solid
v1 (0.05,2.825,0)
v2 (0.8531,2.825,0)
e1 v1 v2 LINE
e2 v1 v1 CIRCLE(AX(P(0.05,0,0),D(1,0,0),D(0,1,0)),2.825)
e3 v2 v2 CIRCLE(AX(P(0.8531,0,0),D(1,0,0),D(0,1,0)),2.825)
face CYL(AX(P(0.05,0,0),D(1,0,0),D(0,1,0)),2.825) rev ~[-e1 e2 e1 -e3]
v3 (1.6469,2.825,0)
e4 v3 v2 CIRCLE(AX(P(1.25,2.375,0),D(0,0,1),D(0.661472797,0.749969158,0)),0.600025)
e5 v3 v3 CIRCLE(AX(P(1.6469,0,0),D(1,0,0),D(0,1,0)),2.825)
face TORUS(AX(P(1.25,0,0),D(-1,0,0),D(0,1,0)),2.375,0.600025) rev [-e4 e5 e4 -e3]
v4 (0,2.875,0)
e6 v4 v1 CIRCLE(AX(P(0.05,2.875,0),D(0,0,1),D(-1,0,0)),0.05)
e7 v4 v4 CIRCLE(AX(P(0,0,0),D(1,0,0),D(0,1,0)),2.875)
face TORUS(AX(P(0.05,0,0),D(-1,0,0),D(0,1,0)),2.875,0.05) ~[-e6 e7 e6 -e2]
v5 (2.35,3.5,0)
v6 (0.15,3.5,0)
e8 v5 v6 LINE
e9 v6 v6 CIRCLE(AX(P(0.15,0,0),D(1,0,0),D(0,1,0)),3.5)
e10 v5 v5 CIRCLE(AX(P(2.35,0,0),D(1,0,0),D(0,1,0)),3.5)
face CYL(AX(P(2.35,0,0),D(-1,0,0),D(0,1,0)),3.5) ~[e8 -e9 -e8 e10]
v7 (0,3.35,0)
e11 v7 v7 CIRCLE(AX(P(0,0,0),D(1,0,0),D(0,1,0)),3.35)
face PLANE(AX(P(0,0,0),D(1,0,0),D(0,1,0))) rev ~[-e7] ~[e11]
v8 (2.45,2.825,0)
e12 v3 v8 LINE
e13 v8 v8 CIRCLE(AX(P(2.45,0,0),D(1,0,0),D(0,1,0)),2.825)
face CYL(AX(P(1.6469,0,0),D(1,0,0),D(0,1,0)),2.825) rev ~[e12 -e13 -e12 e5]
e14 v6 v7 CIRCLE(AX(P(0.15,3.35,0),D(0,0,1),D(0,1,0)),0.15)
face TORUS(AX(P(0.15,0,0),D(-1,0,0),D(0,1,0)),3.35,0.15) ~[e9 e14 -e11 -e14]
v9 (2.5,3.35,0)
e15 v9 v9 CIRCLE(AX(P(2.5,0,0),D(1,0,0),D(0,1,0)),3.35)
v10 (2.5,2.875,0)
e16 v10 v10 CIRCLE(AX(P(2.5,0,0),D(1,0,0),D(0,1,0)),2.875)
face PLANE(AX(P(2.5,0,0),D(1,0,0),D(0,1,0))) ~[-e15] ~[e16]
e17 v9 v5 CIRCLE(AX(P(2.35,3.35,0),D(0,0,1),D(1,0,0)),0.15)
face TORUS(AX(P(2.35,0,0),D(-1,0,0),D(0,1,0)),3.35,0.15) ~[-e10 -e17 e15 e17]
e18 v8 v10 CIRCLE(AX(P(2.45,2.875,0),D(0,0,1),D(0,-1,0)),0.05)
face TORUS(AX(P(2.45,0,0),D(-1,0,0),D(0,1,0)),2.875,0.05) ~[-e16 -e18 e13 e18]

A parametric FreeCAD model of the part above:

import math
import FreeCAD as App
import Part
import Sketcher

V = App.Vector
Q = App.Units.Quantity

doc = App.newDocument("Part")
body = doc.addObject("PartDesign::Body", "Body")

# Sketch on XY plane
sketch1 = body.newObject("Sketcher::SketchObject", "Sketch")
sketch1.AttachmentSupport = (doc.getObject("XY_Plane"), [""])
sketch1.MapMode = "FlatFace"
sketch1.addGeometry(Part.LineSegment(V(0, 3.35, 0), V(0, 2.875, 0)), False)
sketch1.addGeometry(Part.ArcOfCircle(Part.Circle(V(0.05, 2.875, 0), V(0, 0, 1), 0.05), math.radians(180), math.radians(270)), False)
sketch1.addGeometry(Part.LineSegment(V(0.05, 2.825, 0), V(0.853, 2.825, 0)), False)
sketch1.addGeometry(Part.ArcOfCircle(Part.Circle(V(1.25, 2.375, 0), V(0, 0, 1), 0.6), math.radians(49), math.radians(131)), False)
sketch1.addGeometry(Part.LineSegment(V(1.647, 2.825, 0), V(2.45, 2.825, 0)), False)
sketch1.addGeometry(Part.ArcOfCircle(Part.Circle(V(2.45, 2.875, 0), V(0, 0, 1), 0.05), math.radians(-90), math.radians(0)), False)
sketch1.addGeometry(Part.LineSegment(V(2.5, 2.875, 0), V(2.5, 3.35, 0)), False)
sketch1.addGeometry(Part.ArcOfCircle(Part.Circle(V(2.35, 3.35, 0), V(0, 0, 1), 0.15), math.radians(0), math.radians(90)), False)
sketch1.addGeometry(Part.LineSegment(V(2.35, 3.5, 0), V(0.15, 3.5, 0)), False)
sketch1.addGeometry(Part.ArcOfCircle(Part.Circle(V(0.15, 3.35, 0), V(0, 0, 1), 0.15), math.radians(90), math.radians(180)), False)
sketch1.addConstraint(Sketcher.Constraint("Tangent", 0, 2, 1, 1))
sketch1.addConstraint(Sketcher.Constraint("Tangent", 1, 2, 2, 1))
sketch1.addConstraint(Sketcher.Constraint("Coincident", 2, 2, 3, 2))
sketch1.addConstraint(Sketcher.Constraint("Coincident", 3, 1, 4, 1))
sketch1.addConstraint(Sketcher.Constraint("Tangent", 4, 2, 5, 1))
sketch1.addConstraint(Sketcher.Constraint("Tangent", 5, 2, 6, 1))
sketch1.addConstraint(Sketcher.Constraint("Tangent", 6, 2, 7, 1))
sketch1.addConstraint(Sketcher.Constraint("Tangent", 7, 2, 8, 1))
sketch1.addConstraint(Sketcher.Constraint("Tangent", 8, 2, 9, 1))
sketch1.addConstraint(Sketcher.Constraint("Tangent", 9, 2, 0, 1))
sketch1.addConstraint(Sketcher.Constraint("Vertical", 0))
sketch1.addConstraint(Sketcher.Constraint("Horizontal", 2))
sketch1.addConstraint(Sketcher.Constraint("Horizontal", 4))
sketch1.addConstraint(Sketcher.Constraint("Vertical", 6))
sketch1.addConstraint(Sketcher.Constraint("Horizontal", 8))
sketch1.addConstraint(Sketcher.Constraint("Equal", 1, 5))
sketch1.addConstraint(Sketcher.Constraint("Equal", 7, 9))
sketch1.addConstraint(Sketcher.Constraint("PointOnObject", 0, 2, -2))
sketch1.addConstraint(Sketcher.Constraint("Horizontal", 1, 3, 5, 3))
sketch1.addConstraint(Sketcher.Constraint("Equal", 2, 4))
sketch1.addConstraint(Sketcher.Constraint("Radius", 3, Q("0.6 mm")))
sketch1.addConstraint(Sketcher.Constraint("Radius", 1, Q("0.05 mm")))
sketch1.addConstraint(Sketcher.Constraint("Radius", 7, Q("0.15 mm")))
sketch1.addConstraint(Sketcher.Constraint("DistanceX", 8, 2, 8, 1, Q("2.2 mm")))
sketch1.addConstraint(Sketcher.Constraint("DistanceY", -1, 1, 7, 2, Q("3.5 mm")))
sketch1.addConstraint(Sketcher.Constraint("DistanceY", 3, 3, 1, 3, Q("0.5 mm")))
sketch1.addConstraint(Sketcher.Constraint("DistanceY", 0, 2, 0, 1, Q("0.475 mm")))
revolution = body.newObject("PartDesign::Revolution", "Revolution")
revolution.Profile = sketch1
revolution.ReferenceAxis = (sketch1, ["H_Axis"])
revolution.Angle = 360

doc.recompute()
